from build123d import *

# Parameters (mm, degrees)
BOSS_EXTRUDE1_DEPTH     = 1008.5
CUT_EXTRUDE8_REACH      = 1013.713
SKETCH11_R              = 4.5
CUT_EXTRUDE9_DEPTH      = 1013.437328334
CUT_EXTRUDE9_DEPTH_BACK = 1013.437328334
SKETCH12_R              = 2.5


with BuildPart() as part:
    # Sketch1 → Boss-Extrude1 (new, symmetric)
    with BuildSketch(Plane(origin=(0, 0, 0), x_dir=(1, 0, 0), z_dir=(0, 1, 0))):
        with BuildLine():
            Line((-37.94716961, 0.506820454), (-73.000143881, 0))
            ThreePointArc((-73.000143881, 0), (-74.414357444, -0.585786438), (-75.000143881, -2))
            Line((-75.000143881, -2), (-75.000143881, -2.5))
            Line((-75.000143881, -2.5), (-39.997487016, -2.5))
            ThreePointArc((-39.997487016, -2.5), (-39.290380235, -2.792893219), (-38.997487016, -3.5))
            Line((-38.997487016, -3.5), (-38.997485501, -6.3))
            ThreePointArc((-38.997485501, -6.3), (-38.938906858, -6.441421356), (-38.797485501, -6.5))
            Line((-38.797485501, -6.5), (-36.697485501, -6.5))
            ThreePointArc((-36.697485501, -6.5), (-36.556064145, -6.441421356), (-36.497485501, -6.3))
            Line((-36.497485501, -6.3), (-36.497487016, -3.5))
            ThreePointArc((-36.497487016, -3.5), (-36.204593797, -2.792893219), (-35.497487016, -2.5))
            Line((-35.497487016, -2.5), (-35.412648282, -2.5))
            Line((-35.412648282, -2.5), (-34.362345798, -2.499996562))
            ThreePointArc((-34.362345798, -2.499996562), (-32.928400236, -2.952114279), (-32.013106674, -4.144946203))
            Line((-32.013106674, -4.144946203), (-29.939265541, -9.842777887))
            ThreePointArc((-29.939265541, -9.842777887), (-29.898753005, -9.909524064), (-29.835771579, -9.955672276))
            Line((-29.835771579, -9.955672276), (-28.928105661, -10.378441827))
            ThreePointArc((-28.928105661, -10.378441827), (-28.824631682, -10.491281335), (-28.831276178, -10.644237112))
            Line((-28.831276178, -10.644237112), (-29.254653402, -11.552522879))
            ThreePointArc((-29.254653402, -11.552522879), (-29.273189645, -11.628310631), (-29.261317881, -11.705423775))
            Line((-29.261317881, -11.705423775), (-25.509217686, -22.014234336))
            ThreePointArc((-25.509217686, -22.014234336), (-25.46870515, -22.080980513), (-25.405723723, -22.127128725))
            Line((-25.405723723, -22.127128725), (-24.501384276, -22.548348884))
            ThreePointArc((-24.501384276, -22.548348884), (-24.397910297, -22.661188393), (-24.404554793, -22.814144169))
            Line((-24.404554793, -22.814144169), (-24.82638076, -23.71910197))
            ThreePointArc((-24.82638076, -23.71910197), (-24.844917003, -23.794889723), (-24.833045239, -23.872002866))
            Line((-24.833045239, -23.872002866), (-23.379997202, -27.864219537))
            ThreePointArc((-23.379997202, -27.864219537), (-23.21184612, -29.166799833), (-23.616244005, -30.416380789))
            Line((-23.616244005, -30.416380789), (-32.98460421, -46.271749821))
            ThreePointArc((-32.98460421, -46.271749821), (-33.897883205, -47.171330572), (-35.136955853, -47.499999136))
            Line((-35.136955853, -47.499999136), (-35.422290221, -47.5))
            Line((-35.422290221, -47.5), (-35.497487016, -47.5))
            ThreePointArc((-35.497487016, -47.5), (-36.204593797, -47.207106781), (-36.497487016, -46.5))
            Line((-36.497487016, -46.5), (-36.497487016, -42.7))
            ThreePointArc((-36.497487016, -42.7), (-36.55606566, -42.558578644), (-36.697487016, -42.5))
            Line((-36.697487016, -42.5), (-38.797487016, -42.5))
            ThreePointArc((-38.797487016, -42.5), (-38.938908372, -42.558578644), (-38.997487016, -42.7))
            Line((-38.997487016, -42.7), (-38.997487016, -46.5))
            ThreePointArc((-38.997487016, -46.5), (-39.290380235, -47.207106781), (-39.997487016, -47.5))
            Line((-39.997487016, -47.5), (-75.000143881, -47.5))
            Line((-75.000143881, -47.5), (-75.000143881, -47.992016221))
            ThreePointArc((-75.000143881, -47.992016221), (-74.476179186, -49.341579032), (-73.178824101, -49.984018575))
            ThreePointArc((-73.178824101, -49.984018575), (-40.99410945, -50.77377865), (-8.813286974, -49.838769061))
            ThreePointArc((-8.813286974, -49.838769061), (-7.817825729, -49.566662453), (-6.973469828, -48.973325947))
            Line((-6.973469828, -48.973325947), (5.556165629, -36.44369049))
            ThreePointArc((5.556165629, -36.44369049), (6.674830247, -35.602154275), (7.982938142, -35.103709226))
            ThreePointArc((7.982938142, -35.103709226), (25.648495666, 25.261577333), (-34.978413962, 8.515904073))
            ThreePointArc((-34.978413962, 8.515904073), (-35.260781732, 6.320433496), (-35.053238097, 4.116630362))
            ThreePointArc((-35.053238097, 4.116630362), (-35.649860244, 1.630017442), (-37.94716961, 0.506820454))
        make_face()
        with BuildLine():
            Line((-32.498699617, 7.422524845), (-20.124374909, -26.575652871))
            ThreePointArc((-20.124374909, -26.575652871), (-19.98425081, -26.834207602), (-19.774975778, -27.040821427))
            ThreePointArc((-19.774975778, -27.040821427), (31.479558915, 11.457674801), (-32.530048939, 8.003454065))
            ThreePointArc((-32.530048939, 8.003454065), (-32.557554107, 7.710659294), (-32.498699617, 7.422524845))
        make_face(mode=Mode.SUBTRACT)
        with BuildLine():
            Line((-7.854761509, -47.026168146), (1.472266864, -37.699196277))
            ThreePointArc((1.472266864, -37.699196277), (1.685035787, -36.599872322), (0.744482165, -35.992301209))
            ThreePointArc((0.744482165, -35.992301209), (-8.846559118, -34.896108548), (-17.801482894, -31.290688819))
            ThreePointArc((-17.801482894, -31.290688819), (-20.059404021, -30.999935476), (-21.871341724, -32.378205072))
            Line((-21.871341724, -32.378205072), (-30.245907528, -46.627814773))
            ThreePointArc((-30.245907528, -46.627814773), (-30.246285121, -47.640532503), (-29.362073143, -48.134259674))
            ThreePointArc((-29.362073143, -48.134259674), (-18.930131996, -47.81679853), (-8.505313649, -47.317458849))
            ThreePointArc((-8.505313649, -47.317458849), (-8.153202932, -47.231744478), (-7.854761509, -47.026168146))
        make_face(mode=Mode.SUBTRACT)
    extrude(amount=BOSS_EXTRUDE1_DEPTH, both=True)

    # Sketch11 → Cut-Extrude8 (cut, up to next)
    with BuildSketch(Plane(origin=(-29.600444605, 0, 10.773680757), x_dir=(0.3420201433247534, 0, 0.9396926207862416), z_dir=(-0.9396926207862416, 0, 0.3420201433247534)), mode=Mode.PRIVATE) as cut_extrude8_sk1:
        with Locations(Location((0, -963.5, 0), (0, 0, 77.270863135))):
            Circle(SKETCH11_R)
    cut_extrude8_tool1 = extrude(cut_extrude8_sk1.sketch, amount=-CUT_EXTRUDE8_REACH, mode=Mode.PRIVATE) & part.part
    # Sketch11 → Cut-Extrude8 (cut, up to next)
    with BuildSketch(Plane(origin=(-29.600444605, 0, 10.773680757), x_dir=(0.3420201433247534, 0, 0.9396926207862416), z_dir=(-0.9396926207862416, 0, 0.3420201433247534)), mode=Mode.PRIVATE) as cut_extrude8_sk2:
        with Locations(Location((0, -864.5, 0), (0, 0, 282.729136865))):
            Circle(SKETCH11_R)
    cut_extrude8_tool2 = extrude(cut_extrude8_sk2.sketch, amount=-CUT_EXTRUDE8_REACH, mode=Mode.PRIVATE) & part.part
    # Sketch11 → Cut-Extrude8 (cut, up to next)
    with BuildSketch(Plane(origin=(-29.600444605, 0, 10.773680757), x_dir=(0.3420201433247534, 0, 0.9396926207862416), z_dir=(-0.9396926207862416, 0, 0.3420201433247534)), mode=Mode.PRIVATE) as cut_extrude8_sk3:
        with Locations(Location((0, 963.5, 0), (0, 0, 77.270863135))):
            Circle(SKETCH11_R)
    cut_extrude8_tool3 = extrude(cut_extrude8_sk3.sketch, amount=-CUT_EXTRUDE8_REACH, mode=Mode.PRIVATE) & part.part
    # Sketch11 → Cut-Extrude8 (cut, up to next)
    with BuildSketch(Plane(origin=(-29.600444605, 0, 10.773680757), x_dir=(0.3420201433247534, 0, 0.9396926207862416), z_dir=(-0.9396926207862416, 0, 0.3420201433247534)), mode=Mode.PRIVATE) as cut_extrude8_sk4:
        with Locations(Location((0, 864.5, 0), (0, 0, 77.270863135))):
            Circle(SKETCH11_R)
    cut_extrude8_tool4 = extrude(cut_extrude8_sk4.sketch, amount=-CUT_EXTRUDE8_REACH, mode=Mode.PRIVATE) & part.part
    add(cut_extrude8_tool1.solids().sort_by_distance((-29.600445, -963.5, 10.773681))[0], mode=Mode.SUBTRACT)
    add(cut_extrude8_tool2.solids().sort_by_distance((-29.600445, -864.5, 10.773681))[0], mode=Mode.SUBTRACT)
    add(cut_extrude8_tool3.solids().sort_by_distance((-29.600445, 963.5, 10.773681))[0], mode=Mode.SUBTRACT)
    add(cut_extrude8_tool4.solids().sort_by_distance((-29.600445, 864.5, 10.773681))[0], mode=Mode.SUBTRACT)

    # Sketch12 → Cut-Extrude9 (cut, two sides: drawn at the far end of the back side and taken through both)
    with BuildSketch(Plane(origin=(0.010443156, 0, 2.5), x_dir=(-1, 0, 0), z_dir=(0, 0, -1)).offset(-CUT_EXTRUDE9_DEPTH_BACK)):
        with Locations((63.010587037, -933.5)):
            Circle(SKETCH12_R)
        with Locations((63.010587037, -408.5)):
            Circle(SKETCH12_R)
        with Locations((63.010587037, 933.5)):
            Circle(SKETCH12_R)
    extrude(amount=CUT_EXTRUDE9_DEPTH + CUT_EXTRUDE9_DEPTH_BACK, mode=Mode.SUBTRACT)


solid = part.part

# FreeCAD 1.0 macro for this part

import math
import FreeCAD as App
import Part
import Sketcher

V = App.Vector
Q = App.Units.Quantity

doc = App.newDocument("Part")
body = doc.addObject("PartDesign::Body", "Body")

# Sketch on XZ plane
sketch1 = body.newObject("Sketcher::SketchObject", "Sketch")
sketch1.AttachmentSupport = (doc.getObject("XZ_Plane"), [""])
sketch1.MapMode = "FlatFace"
sketch1.addGeometry([
    Part.LineSegment(V(-37.95, -0.51, 0), V(-73, 0, 0)),  # 0
    Part.ArcOfCircle(Part.Circle(V(-73, 2, 0), V(0, 0, 1), 2), math.radians(180), math.radians(270)),  # 1
    Part.LineSegment(V(-75, 2, 0), V(-75, 2.5, 0)),  # 2
    Part.LineSegment(V(-75, 2.5, 0), V(-40, 2.5, 0)),  # 3
    Part.ArcOfCircle(Part.Circle(V(-40, 3.5, 0), V(0, 0, 1), 1), math.radians(-90), math.radians(0)),  # 4
    Part.LineSegment(V(-39, 3.5, 0), V(-39, 6.3, 0)),  # 5
    Part.ArcOfCircle(Part.Circle(V(-38.8, 6.3, 0), V(0, 0, 1), 0.2), math.radians(90), math.radians(180)),  # 6
    Part.LineSegment(V(-38.8, 6.5, 0), V(-36.7, 6.5, 0)),  # 7
    Part.ArcOfCircle(Part.Circle(V(-36.7, 6.3, 0), V(0, 0, 1), 0.2), math.radians(0), math.radians(90)),  # 8
    Part.LineSegment(V(-36.5, 6.3, 0), V(-36.5, 3.5, 0)),  # 9
    Part.ArcOfCircle(Part.Circle(V(-35.5, 3.5, 0), V(0, 0, 1), 1), math.radians(-180), math.radians(-90)),  # 10
    Part.LineSegment(V(-35.5, 2.5, 0), V(-35.41, 2.5, 0)),  # 11
    Part.LineSegment(V(-35.41, 2.5, 0), V(-34.36, 2.5, 0)),  # 12
    Part.ArcOfCircle(Part.Circle(V(-34.36, 5, 0), V(0, 0, 1), 2.5), math.radians(-90), math.radians(-20)),  # 13
    Part.LineSegment(V(-32.01, 4.14, 0), V(-29.94, 9.84, 0)),  # 14
    Part.ArcOfCircle(Part.Circle(V(-29.75, 9.77, 0), V(0, 0, 1), 0.2), math.radians(115), math.radians(160)),  # 15
    Part.LineSegment(V(-29.84, 9.96, 0), V(-28.93, 10.38, 0)),  # 16
    Part.ArcOfCircle(Part.Circle(V(-29.01, 10.56, 0), V(0, 0, 1), 0.2), math.radians(-65), math.radians(25)),  # 17
    Part.LineSegment(V(-28.83, 10.64, 0), V(-29.25, 11.55, 0)),  # 18
    Part.ArcOfCircle(Part.Circle(V(-29.07, 11.64, 0), V(0, 0, 1), 0.2), math.radians(160), math.radians(205)),  # 19
    Part.LineSegment(V(-29.26, 11.71, 0), V(-25.51, 22.01, 0)),  # 20
    Part.ArcOfCircle(Part.Circle(V(-25.32, 21.95, 0), V(0, 0, 1), 0.2), math.radians(115), math.radians(160)),  # 21
    Part.LineSegment(V(-25.41, 22.13, 0), V(-24.5, 22.55, 0)),  # 22
    Part.ArcOfCircle(Part.Circle(V(-24.59, 22.73, 0), V(0, 0, 1), 0.2), math.radians(-65), math.radians(25)),  # 23
    Part.LineSegment(V(-24.4, 22.81, 0), V(-24.83, 23.72, 0)),  # 24
    Part.ArcOfCircle(Part.Circle(V(-24.65, 23.8, 0), V(0, 0, 1), 0.2), math.radians(160), math.radians(205)),  # 25
    Part.LineSegment(V(-24.83, 23.87, 0), V(-23.38, 27.86, 0)),  # 26
    Part.ArcOfCircle(Part.Circle(V(-26.2, 28.89, 0), V(0, 0, 1), 3), math.radians(-20), math.radians(31)),  # 27
    Part.LineSegment(V(-23.62, 30.42, 0), V(-32.98, 46.27, 0)),  # 28
    Part.ArcOfCircle(Part.Circle(V(-35.14, 45, 0), V(0, 0, 1), 2.5), math.radians(31), math.radians(90)),  # 29
    Part.LineSegment(V(-35.14, 47.5, 0), V(-35.42, 47.5, 0)),  # 30
    Part.LineSegment(V(-35.42, 47.5, 0), V(-35.5, 47.5, 0)),  # 31
    Part.ArcOfCircle(Part.Circle(V(-35.5, 46.5, 0), V(0, 0, 1), 1), math.radians(90), math.radians(180)),  # 32
    Part.LineSegment(V(-36.5, 46.5, 0), V(-36.5, 42.7, 0)),  # 33
    Part.ArcOfCircle(Part.Circle(V(-36.7, 42.7, 0), V(0, 0, 1), 0.2), math.radians(-90), math.radians(0)),  # 34
    Part.LineSegment(V(-36.7, 42.5, 0), V(-38.8, 42.5, 0)),  # 35
    Part.ArcOfCircle(Part.Circle(V(-38.8, 42.7, 0), V(0, 0, 1), 0.2), math.radians(-180), math.radians(-90)),  # 36
    Part.LineSegment(V(-39, 42.7, 0), V(-39, 46.5, 0)),  # 37
    Part.ArcOfCircle(Part.Circle(V(-40, 46.5, 0), V(0, 0, 1), 1), math.radians(0), math.radians(90)),  # 38
    Part.LineSegment(V(-40, 47.5, 0), V(-75, 47.5, 0)),  # 39
    Part.LineSegment(V(-75, 47.5, 0), V(-75, 47.99, 0)),  # 40
    Part.ArcOfCircle(Part.Circle(V(-73, 47.99, 0), V(0, 0, 1), 2), math.radians(95), math.radians(180)),  # 41
    Part.ArcOfCircle(Part.Circle(V(-42.35, -550.16, 0), V(0, 0, 1), 600.94), math.radians(86.8), math.radians(92.94)),  # 42
    Part.ArcOfCircle(Part.Circle(V(-9.09, 46.85, 0), V(0, 0, 1), 3), math.radians(45), math.radians(85)),  # 43
    Part.LineSegment(V(-6.97, 48.97, 0), V(5.56, 36.44, 0)),  # 44
    Part.ArcOfCircle(Part.Circle(V(9.09, 39.98, 0), V(0, 0, 1), 5), math.radians(-135), math.radians(-103)),  # 45
    Part.ArcOfCircle(Part.Circle(V(0, 0, 0), V(0, 0, 1), 36), math.radians(-166), math.radians(77)),  # 46
    Part.ArcOfCircle(Part.Circle(V(-25.26, -6.15, 0), V(0, 0, 1), 10), math.radians(168), math.radians(194)),  # 47
    Part.ArcOfCircle(Part.Circle(V(-37.99, -3.51, 0), V(0, 0, 1), 3), math.radians(-12), math.radians(89)),  # 48
    Part.LineSegment(V(1.47, 37.7, 0), V(-7.85, 47.03, 0)),  # 49
    Part.ArcOfCircle(Part.Circle(V(-8.56, 46.32, 0), V(0, 0, 1), 1), math.radians(45), math.radians(87)),  # 50
    Part.ArcOfCircle(Part.Circle(V(-42.35, -550.16, 0), V(0, 0, 1), 598.44), math.radians(86.76), math.radians(88.76)),  # 51
    Part.ArcOfCircle(Part.Circle(V(-29.38, 47.13, 0), V(0, 0, 1), 1), math.radians(89), math.radians(210)),  # 52
    Part.LineSegment(V(-30.25, 46.63, 0), V(-21.87, 32.38, 0)),  # 53
    Part.ArcOfCircle(Part.Circle(V(-19.28, 33.9, 0), V(0, 0, 1), 3), math.radians(-150), math.radians(-60)),  # 54
    Part.ArcOfCircle(Part.Circle(V(0, 0, 0), V(0, 0, 1), 36), math.radians(89), math.radians(120)),  # 55
    Part.ArcOfCircle(Part.Circle(V(0.77, 36.99, 0), V(0, 0, 1), 1), math.radians(-91), math.radians(45)),  # 56
    Part.LineSegment(V(-20.12, 26.58, 0), V(-32.5, -7.42, 0)),  # 57
    Part.ArcOfCircle(Part.Circle(V(-31.56, -7.76, 0), V(0, 0, 1), 1), math.radians(160), math.radians(194)),  # 58
    Part.ArcOfCircle(Part.Circle(V(0, 0, 0), V(0, 0, 1), 33.5), math.radians(-166), math.radians(126)),  # 59
    Part.ArcOfCircle(Part.Circle(V(-19.18, 26.23, 0), V(0, 0, 1), 1), math.radians(126), math.radians(160)),  # 60
], False)
sketch1.addConstraint([
    Sketcher.Constraint("Coincident", 0, 2, 1, 2),
    Sketcher.Constraint("Tangent", 1, 1, 2, 1),
    Sketcher.Constraint("Coincident", 2, 2, 3, 1),
    Sketcher.Constraint("Tangent", 3, 2, 4, 1),
    Sketcher.Constraint("Tangent", 4, 2, 5, 1),
    Sketcher.Constraint("Tangent", 5, 2, 6, 2),
    Sketcher.Constraint("Tangent", 6, 1, 7, 1),
    Sketcher.Constraint("Tangent", 7, 2, 8, 2),
    Sketcher.Constraint("Tangent", 8, 1, 9, 1),
    Sketcher.Constraint("Tangent", 9, 2, 10, 1),
    Sketcher.Constraint("Tangent", 10, 2, 11, 1),
    Sketcher.Constraint("Coincident", 11, 2, 12, 1),
    Sketcher.Constraint("Tangent", 12, 2, 13, 1),
    Sketcher.Constraint("Tangent", 13, 2, 14, 1),
    Sketcher.Constraint("Tangent", 14, 2, 15, 2),
    Sketcher.Constraint("Tangent", 15, 1, 16, 1),
    Sketcher.Constraint("Tangent", 16, 2, 17, 1),
    Sketcher.Constraint("Tangent", 17, 2, 18, 1),
    Sketcher.Constraint("Tangent", 18, 2, 19, 2),
    Sketcher.Constraint("Tangent", 19, 1, 20, 1),
    Sketcher.Constraint("Tangent", 20, 2, 21, 2),
    Sketcher.Constraint("Tangent", 21, 1, 22, 1),
    Sketcher.Constraint("Tangent", 22, 2, 23, 1),
    Sketcher.Constraint("Tangent", 23, 2, 24, 1),
    Sketcher.Constraint("Tangent", 24, 2, 25, 2),
    Sketcher.Constraint("Tangent", 25, 1, 26, 1),
    Sketcher.Constraint("Tangent", 26, 2, 27, 1),
    Sketcher.Constraint("Tangent", 27, 2, 28, 1),
    Sketcher.Constraint("Tangent", 28, 2, 29, 1),
    Sketcher.Constraint("Tangent", 29, 2, 30, 1),
    Sketcher.Constraint("Coincident", 30, 2, 31, 1),
    Sketcher.Constraint("Tangent", 31, 2, 32, 1),
    Sketcher.Constraint("Tangent", 32, 2, 33, 1),
    Sketcher.Constraint("Tangent", 33, 2, 34, 2),
    Sketcher.Constraint("Tangent", 34, 1, 35, 1),
    Sketcher.Constraint("Tangent", 35, 2, 36, 2),
    Sketcher.Constraint("Tangent", 36, 1, 37, 1),
    Sketcher.Constraint("Tangent", 37, 2, 38, 1),
    Sketcher.Constraint("Tangent", 38, 2, 39, 1),
    Sketcher.Constraint("Coincident", 39, 2, 40, 1),
    Sketcher.Constraint("Tangent", 40, 2, 41, 2),
    Sketcher.Constraint("Coincident", 41, 1, 42, 2),
    Sketcher.Constraint("Coincident", 42, 1, 43, 2),
    Sketcher.Constraint("Tangent", 43, 1, 44, 1),
    Sketcher.Constraint("Tangent", 44, 2, 45, 1),
    Sketcher.Constraint("Tangent", 45, 2, 46, 2),
    Sketcher.Constraint("Tangent", 46, 1, 47, 2),
    Sketcher.Constraint("Tangent", 47, 1, 48, 1),
    Sketcher.Constraint("Tangent", 48, 2, 0, 1),
    Sketcher.Constraint("Tangent", 49, 2, 50, 1),
    Sketcher.Constraint("Tangent", 50, 2, 51, 1),
    Sketcher.Constraint("Tangent", 51, 2, 52, 1),
    Sketcher.Constraint("Tangent", 52, 2, 53, 1),
    Sketcher.Constraint("Tangent", 53, 2, 54, 1),
    Sketcher.Constraint("Tangent", 54, 2, 55, 2),
    Sketcher.Constraint("Tangent", 55, 1, 56, 1),
    Sketcher.Constraint("Tangent", 56, 2, 49, 1),
    Sketcher.Constraint("Tangent", 57, 2, 58, 1),
    Sketcher.Constraint("Tangent", 58, 2, 59, 1),
    Sketcher.Constraint("Tangent", 59, 2, 60, 1),
    Sketcher.Constraint("Tangent", 60, 2, 57, 1),
    Sketcher.Constraint("Vertical", 2),
    Sketcher.Constraint("Horizontal", 3),
    Sketcher.Constraint("Vertical", 5),
    Sketcher.Constraint("Horizontal", 7),
    Sketcher.Constraint("Vertical", 9),
    Sketcher.Constraint("Horizontal", 11),
    Sketcher.Constraint("Horizontal", 30),
    Sketcher.Constraint("Horizontal", 31),
    Sketcher.Constraint("Vertical", 33),
    Sketcher.Constraint("Horizontal", 35),
    Sketcher.Constraint("Vertical", 37),
    Sketcher.Constraint("Horizontal", 39),
    Sketcher.Constraint("Vertical", 40),
    Sketcher.Constraint("Coincident", 55, 3, -1, 1),
    Sketcher.Constraint("Coincident", 59, 3, 46, 3),
    Sketcher.Constraint("Equal", 6, 8),
    Sketcher.Constraint("Equal", 4, 10),
    Sketcher.Constraint("Equal", 8, 15),
    Sketcher.Constraint("Equal", 15, 17),
    Sketcher.Constraint("Equal", 17, 19),
    Sketcher.Constraint("Equal", 19, 21),
    Sketcher.Constraint("Equal", 21, 23),
    Sketcher.Constraint("Equal", 23, 25),
    Sketcher.Constraint("Equal", 13, 29),
    Sketcher.Constraint("Equal", 10, 32),
    Sketcher.Constraint("Equal", 25, 34),
    Sketcher.Constraint("Equal", 34, 36),
    Sketcher.Constraint("Equal", 32, 38),
    Sketcher.Constraint("Equal", 1, 41),
    Sketcher.Constraint("Equal", 27, 43),
    Sketcher.Constraint("Equal", 43, 48),
    Sketcher.Constraint("Equal", 38, 50),
    Sketcher.Constraint("Equal", 50, 52),
    Sketcher.Constraint("Equal", 48, 54),
    Sketcher.Constraint("Equal", 46, 55),
    Sketcher.Constraint("Equal", 52, 56),
    Sketcher.Constraint("Equal", 56, 58),
    Sketcher.Constraint("Equal", 58, 60),
    Sketcher.Constraint("PointOnObject", 46, 3, -1),
    Sketcher.Constraint("PointOnObject", 0, 2, -1),
    Sketcher.Constraint("Parallel", 14, 20),
    Sketcher.Constraint("Parallel", 16, 22),
    Sketcher.Constraint("Parallel", 18, 24),
    Sketcher.Constraint("Parallel", 20, 26),
    Sketcher.Constraint("Parallel", 26, 57),
    Sketcher.Constraint("Horizontal", 4, 3, 10, 3),
    Sketcher.Constraint("Horizontal", 32, 3, 38, 3),
    Sketcher.Constraint("Vertical", 10, 3, 32, 3),
    Sketcher.Constraint("Vertical", 6, 3, 36, 3),
    Sketcher.Constraint("Vertical", 1, 3, 41, 3),
    Sketcher.Constraint("Vertical", 41, 3, 0, 2),
    Sketcher.Constraint("Radius", 1, 2.0),
    Sketcher.Constraint("Radius", 4, 1.0),
    Sketcher.Constraint("Radius", 27, 3.0),
    Sketcher.Constraint("Radius", 45, 5.0),
    Sketcher.Constraint("Radius", 46, 36.0),
    Sketcher.Constraint("Radius", 47, 10.0),
    Sketcher.Constraint("Radius", 6, 0.2),
    Sketcher.Constraint("Radius", 13, 2.5),
    Sketcher.Constraint("Radius", 59, 33.5),
    Sketcher.Constraint("Angle", 14, Q("70 deg")),
    Sketcher.Constraint("Angle", 44, Q("-45 deg")),
    Sketcher.Constraint("DistanceX", 7, 1, 7, 2, 2.1),
    Sketcher.Constraint("DistanceY", 2, 1, 2, 2, 0.5),
    Sketcher.Constraint("DistanceY", 5, 1, 5, 2, 2.8),
    Sketcher.Constraint("DistanceY", 33, 2, 33, 1, 3.8),
    Sketcher.Constraint("DistanceY", -1, 1, 29, 3, 44.999999),
    Sketcher.Constraint("Radius", 42, 600.936438),
    Sketcher.Constraint("Radius", 51, 598.436439),
    Sketcher.Constraint("Distance", 53, 16.528301),
    Sketcher.Constraint("DistanceX", 11, 1, 11, 2, 0.084839),
    Sketcher.Constraint("DistanceY", -1, 1, 25, 3, 23.803599),
    Sketcher.Constraint("DistanceX", 42, 3, -1, 1, 42.3502),
    Sketcher.Constraint("DistanceX", -1, 1, 45, 3, 9.0917),
    Sketcher.Constraint("DistanceY", -1, 1, 24, 2, 23.719102),
    Sketcher.Constraint("DistanceY", -1, 1, 55, 1, 35.992301),
    Sketcher.Constraint("DistanceX", 57, 2, -1, 1, 32.4987),
    Sketcher.Constraint("Distance", 0, 35.056638),
    Sketcher.Constraint("Distance", 24, 0.998442),
    Sketcher.Constraint("Distance", 26, 4.248428),
    Sketcher.Constraint("Distance", 44, 17.71958),
    Sketcher.Constraint("Distance", 49, 13.19037),
    Sketcher.Constraint("DistanceX", 3, 1, 3, 2, 35.002657),
    Sketcher.Constraint("DistanceX", 30, 2, 30, 1, 0.285334),
    Sketcher.Constraint("DistanceX", 31, 2, 31, 1, 0.075197),
    Sketcher.Constraint("DistanceY", 40, 1, 40, 2, 0.492016),
    Sketcher.Constraint("DistanceX", 13, 3, -1, 1, 34.362338),
    Sketcher.Constraint("DistanceX", 17, 3, -1, 1, 29.01255),
    Sketcher.Constraint("DistanceY", -1, 1, 17, 3, 10.55974),
    Sketcher.Constraint("DistanceX", 19, 3, -1, 1, 29.073379),
    Sketcher.Constraint("DistanceX", 21, 3, -1, 1, 25.321279),
    Sketcher.Constraint("DistanceX", 23, 3, -1, 1, 24.585829),
    Sketcher.Constraint("DistanceY", 42, 3, -1, 1, 550.16113),
    Sketcher.Constraint("DistanceX", 48, 3, -1, 1, 37.990541),
    Sketcher.Constraint("DistanceY", -1, 1, 50, 3, 46.319059),
    Sketcher.Constraint("DistanceX", 51, 3, -1, 1, 42.34839),
    Sketcher.Constraint("DistanceX", 54, 3, -1, 1, 19.28494),
    Sketcher.Constraint("DistanceX", 11, 2, -1, 1, 35.412648),
    Sketcher.Constraint("DistanceX", 15, 1, -1, 1, 29.835772),
    Sketcher.Constraint("DistanceY", -1, 1, 44, 2, 36.44369),
])
pad1 = body.newObject("PartDesign::Pad", "Pad")
pad1.Profile = sketch1
pad1.Length = 2017
pad1.Midplane = True

# Sketch on an angled plane
sketch2 = body.newObject("Sketcher::SketchObject", "Sketch001")
sketch2.Placement = App.Placement(V(-29.600445, 0, 10.773681), App.Rotation(V(0.342020143, 0, 0.939692621), V(0, 1, 0), V(-0.939692621, 0, 0.342020143), "ZXY"))
sketch2.addGeometry(Part.Circle(V(0, -963.5, 0), V(0, 0, 1), 4.5), False)
sketch2.addConstraint([
    Sketcher.Constraint("PointOnObject", 0, 3, -2),
    Sketcher.Constraint("Diameter", 0, 9.0),
    Sketcher.Constraint("DistanceY", 0, 3, -1, 1, 963.5),
])
pocket1 = body.newObject("PartDesign::Pocket", "Pocket")
pocket1.Profile = sketch2
pocket1.Length = 3.5

# Sketch on an angled plane
sketch3 = body.newObject("Sketcher::SketchObject", "Sketch002")
sketch3.Placement = App.Placement(V(-29.600445, 0, 10.773681), App.Rotation(V(0.342020143, 0, 0.939692621), V(0, 1, 0), V(-0.939692621, 0, 0.342020143), "ZXY"))
sketch3.addGeometry(Part.Circle(V(0, -864.5, 0), V(0, 0, 1), 4.5), False)
sketch3.addConstraint([
    Sketcher.Constraint("PointOnObject", 0, 3, -2),
    Sketcher.Constraint("Diameter", 0, 9.0),
    Sketcher.Constraint("DistanceY", 0, 3, -1, 1, 864.5),
])
pocket2 = body.newObject("PartDesign::Pocket", "Pocket001")
pocket2.Profile = sketch3
pocket2.Length = 3.5

# Sketch on an angled plane
sketch4 = body.newObject("Sketcher::SketchObject", "Sketch003")
sketch4.Placement = App.Placement(V(-29.600445, 0, 10.773681), App.Rotation(V(0.342020143, 0, 0.939692621), V(0, 1, 0), V(-0.939692621, 0, 0.342020143), "ZXY"))
sketch4.addGeometry(Part.Circle(V(0, 963.5, 0), V(0, 0, 1), 4.5), False)
sketch4.addConstraint([
    Sketcher.Constraint("PointOnObject", 0, 3, -2),
    Sketcher.Constraint("Diameter", 0, 9.0),
    Sketcher.Constraint("DistanceY", -1, 1, 0, 3, 963.5),
])
pocket3 = body.newObject("PartDesign::Pocket", "Pocket002")
pocket3.Profile = sketch4
pocket3.Length = 3.5

# Sketch on an angled plane
sketch5 = body.newObject("Sketcher::SketchObject", "Sketch004")
sketch5.Placement = App.Placement(V(-29.600445, 0, 10.773681), App.Rotation(V(0.342020143, 0, 0.939692621), V(0, 1, 0), V(-0.939692621, 0, 0.342020143), "ZXY"))
sketch5.addGeometry(Part.Circle(V(0, 864.5, 0), V(0, 0, 1), 4.5), False)
sketch5.addConstraint([
    Sketcher.Constraint("PointOnObject", 0, 3, -2),
    Sketcher.Constraint("Diameter", 0, 9.0),
    Sketcher.Constraint("DistanceY", -1, 1, 0, 3, 864.5),
])
pocket4 = body.newObject("PartDesign::Pocket", "Pocket003")
pocket4.Profile = sketch5
pocket4.Length = 3.5

# Sketch on XY plane
sketch6 = body.newObject("Sketcher::SketchObject", "Sketch005")
sketch6.AttachmentSupport = (doc.getObject("XY_Plane"), [""])
sketch6.MapMode = "FlatFace"
sketch6.AttachmentOffset = App.Placement(V(0, 0, 2.5), App.Rotation())
sketch6.addGeometry([
    Part.Circle(V(-63, -933.5, 0), V(0, 0, 1), 2.5),
    Part.Circle(V(-63, -408.5, 0), V(0, 0, 1), 2.5),
    Part.Circle(V(-63, 933.5, 0), V(0, 0, 1), 2.5),
], False)
sketch6.addConstraint([
    Sketcher.Constraint("Equal", 0, 1),
    Sketcher.Constraint("Equal", 1, 2),
    Sketcher.Constraint("Symmetric", 0, 3, 2, 3, -1),
    Sketcher.Constraint("Vertical", 0, 3, 1, 3),
    Sketcher.Constraint("Diameter", 0, 5.0),
    Sketcher.Constraint("DistanceY", 0, 3, 1, 3, 525.0),
    Sketcher.Constraint("DistanceY", 1, 3, 2, 3, 1342.0),
    Sketcher.Constraint("DistanceX", 0, 3, -1, 1, 63.000144),
])
pocket5 = body.newObject("PartDesign::Pocket", "Pocket004")
pocket5.Profile = sketch6
pocket5.Type = "ThroughAll"
pocket5.Midplane = True

doc.recompute()
